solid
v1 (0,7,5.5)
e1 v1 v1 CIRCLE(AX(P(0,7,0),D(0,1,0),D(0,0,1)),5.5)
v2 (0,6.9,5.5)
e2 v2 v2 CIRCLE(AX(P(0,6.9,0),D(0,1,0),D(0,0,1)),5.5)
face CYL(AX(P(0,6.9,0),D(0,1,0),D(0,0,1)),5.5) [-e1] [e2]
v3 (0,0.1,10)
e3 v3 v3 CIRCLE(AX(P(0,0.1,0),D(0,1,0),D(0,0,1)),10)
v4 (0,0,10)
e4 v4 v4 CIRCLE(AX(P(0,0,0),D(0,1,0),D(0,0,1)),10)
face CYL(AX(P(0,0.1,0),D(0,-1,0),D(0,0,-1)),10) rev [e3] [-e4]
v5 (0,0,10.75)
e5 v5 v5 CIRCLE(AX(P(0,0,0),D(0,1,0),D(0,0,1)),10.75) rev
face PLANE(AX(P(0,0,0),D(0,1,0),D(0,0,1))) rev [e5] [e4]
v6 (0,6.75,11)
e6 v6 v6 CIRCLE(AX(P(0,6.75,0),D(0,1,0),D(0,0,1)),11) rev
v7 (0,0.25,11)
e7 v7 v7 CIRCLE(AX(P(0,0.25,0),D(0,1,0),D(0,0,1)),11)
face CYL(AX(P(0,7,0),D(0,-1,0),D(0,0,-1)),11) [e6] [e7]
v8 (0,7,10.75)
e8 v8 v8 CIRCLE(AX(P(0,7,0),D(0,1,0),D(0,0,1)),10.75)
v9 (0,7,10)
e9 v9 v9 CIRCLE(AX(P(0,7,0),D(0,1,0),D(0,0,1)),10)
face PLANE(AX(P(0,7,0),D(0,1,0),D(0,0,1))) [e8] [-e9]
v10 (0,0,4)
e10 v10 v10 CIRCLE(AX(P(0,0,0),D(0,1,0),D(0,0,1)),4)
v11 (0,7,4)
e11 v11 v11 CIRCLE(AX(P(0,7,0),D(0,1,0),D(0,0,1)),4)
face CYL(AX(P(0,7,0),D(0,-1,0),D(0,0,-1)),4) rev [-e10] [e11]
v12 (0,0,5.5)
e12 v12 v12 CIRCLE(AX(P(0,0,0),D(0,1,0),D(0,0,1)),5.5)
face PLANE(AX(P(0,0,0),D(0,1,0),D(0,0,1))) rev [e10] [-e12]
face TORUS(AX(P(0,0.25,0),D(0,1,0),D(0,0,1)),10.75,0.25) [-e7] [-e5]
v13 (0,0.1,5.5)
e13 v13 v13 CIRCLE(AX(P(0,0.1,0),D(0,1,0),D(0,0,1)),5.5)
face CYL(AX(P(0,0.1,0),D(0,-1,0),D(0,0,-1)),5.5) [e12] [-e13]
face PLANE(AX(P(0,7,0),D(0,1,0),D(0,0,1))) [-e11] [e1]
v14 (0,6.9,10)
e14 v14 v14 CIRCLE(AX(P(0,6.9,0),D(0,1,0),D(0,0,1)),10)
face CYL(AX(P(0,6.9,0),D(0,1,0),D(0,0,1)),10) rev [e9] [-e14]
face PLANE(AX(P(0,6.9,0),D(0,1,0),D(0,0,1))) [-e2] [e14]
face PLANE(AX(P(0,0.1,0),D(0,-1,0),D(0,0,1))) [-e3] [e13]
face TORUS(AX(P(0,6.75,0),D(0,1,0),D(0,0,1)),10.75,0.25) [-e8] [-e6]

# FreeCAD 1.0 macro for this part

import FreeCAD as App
import Part
import Sketcher
from FreeCAD import Vector
Q = App.Units.Quantity


def edges_at(feature, points):
    """Names of the edges that pass closest to the given points."""
    edges = feature.Shape.Edges
    near = lambda p: min(range(len(edges)), key=lambda i: edges[i].distToShape(Part.Vertex(*p))[0])
    return sorted({f"Edge{near(p) + 1}" for p in points})

doc = App.newDocument("Part")
body = doc.addObject("PartDesign::Body", "Body")

# Sketch on XZ plane
sketch1 = body.newObject("Sketcher::SketchObject", "Sketch")
sketch1.AttachmentSupport = (doc.getObject("XZ_Plane"), [""])
sketch1.MapMode = "FlatFace"
sketch1.addGeometry([
    Part.Circle(Vector(0, 0, 0), Vector(0, 0, 1), 11),
    Part.Circle(Vector(0, 0, 0), Vector(0, 0, 1), 4),
], False)
sketch1.addConstraint([
    Sketcher.Constraint("Coincident", 0, 3, -1, 1),
    Sketcher.Constraint("Coincident", 1, 3, -1, 1),
    Sketcher.Constraint("Diameter", 0, Q("22 mm")),
    Sketcher.Constraint("Diameter", 1, Q("8 mm")),
])
pad1 = body.newObject("PartDesign::Pad", "Pad")
pad1.Profile = sketch1
pad1.Length = 7
pad1.Reversed = True

# Sketch on XZ plane
sketch2 = body.newObject("Sketcher::SketchObject", "Sketch001")
sketch2.AttachmentSupport = (doc.getObject("XZ_Plane"), [""])
sketch2.MapMode = "FlatFace"
sketch2.AttachmentOffset = App.Placement(Vector(0, 0, -7), App.Rotation())
sketch2.addGeometry([
    Part.Circle(Vector(0, 0, 0), Vector(0, 0, 1), 10),
    Part.Circle(Vector(0, 0, 0), Vector(0, 0, 1), 6),
], False)
sketch2.addConstraint([
    Sketcher.Constraint("Coincident", 0, 3, -1, 1),
    Sketcher.Constraint("Coincident", 1, 3, -1, 1),
    Sketcher.Constraint("Diameter", 0, Q("20 mm")),
    Sketcher.Constraint("Diameter", 1, Q("11 mm")),
])
pocket1 = body.newObject("PartDesign::Pocket", "Pocket")
pocket1.Profile = sketch2
pocket1.Length = 0.1
pocket1.Reversed = True
doc.recompute()

datumplane = body.newObject("PartDesign::Plane", "DatumPlane")
datumplane.AttachmentSupport = (doc.getObject("XZ_Plane"), [""])
datumplane.MapMode = "FlatFace"
datumplane.AttachmentOffset = App.Placement(Vector(0, 0, -3.5), App.Rotation())
mirrored = body.newObject("PartDesign::Mirrored", "Mirrored")
mirrored.Originals = [pocket1]
mirrored.MirrorPlane = (datumplane, [""])
body.Tip = mirrored
doc.recompute()

fillet = body.newObject("PartDesign::Fillet", "Fillet")
fillet.Base = (mirrored, edges_at(mirrored, [(0, 0, -11), (0, 7, -11)]))
fillet.Radius = 0.25

doc.recompute()
